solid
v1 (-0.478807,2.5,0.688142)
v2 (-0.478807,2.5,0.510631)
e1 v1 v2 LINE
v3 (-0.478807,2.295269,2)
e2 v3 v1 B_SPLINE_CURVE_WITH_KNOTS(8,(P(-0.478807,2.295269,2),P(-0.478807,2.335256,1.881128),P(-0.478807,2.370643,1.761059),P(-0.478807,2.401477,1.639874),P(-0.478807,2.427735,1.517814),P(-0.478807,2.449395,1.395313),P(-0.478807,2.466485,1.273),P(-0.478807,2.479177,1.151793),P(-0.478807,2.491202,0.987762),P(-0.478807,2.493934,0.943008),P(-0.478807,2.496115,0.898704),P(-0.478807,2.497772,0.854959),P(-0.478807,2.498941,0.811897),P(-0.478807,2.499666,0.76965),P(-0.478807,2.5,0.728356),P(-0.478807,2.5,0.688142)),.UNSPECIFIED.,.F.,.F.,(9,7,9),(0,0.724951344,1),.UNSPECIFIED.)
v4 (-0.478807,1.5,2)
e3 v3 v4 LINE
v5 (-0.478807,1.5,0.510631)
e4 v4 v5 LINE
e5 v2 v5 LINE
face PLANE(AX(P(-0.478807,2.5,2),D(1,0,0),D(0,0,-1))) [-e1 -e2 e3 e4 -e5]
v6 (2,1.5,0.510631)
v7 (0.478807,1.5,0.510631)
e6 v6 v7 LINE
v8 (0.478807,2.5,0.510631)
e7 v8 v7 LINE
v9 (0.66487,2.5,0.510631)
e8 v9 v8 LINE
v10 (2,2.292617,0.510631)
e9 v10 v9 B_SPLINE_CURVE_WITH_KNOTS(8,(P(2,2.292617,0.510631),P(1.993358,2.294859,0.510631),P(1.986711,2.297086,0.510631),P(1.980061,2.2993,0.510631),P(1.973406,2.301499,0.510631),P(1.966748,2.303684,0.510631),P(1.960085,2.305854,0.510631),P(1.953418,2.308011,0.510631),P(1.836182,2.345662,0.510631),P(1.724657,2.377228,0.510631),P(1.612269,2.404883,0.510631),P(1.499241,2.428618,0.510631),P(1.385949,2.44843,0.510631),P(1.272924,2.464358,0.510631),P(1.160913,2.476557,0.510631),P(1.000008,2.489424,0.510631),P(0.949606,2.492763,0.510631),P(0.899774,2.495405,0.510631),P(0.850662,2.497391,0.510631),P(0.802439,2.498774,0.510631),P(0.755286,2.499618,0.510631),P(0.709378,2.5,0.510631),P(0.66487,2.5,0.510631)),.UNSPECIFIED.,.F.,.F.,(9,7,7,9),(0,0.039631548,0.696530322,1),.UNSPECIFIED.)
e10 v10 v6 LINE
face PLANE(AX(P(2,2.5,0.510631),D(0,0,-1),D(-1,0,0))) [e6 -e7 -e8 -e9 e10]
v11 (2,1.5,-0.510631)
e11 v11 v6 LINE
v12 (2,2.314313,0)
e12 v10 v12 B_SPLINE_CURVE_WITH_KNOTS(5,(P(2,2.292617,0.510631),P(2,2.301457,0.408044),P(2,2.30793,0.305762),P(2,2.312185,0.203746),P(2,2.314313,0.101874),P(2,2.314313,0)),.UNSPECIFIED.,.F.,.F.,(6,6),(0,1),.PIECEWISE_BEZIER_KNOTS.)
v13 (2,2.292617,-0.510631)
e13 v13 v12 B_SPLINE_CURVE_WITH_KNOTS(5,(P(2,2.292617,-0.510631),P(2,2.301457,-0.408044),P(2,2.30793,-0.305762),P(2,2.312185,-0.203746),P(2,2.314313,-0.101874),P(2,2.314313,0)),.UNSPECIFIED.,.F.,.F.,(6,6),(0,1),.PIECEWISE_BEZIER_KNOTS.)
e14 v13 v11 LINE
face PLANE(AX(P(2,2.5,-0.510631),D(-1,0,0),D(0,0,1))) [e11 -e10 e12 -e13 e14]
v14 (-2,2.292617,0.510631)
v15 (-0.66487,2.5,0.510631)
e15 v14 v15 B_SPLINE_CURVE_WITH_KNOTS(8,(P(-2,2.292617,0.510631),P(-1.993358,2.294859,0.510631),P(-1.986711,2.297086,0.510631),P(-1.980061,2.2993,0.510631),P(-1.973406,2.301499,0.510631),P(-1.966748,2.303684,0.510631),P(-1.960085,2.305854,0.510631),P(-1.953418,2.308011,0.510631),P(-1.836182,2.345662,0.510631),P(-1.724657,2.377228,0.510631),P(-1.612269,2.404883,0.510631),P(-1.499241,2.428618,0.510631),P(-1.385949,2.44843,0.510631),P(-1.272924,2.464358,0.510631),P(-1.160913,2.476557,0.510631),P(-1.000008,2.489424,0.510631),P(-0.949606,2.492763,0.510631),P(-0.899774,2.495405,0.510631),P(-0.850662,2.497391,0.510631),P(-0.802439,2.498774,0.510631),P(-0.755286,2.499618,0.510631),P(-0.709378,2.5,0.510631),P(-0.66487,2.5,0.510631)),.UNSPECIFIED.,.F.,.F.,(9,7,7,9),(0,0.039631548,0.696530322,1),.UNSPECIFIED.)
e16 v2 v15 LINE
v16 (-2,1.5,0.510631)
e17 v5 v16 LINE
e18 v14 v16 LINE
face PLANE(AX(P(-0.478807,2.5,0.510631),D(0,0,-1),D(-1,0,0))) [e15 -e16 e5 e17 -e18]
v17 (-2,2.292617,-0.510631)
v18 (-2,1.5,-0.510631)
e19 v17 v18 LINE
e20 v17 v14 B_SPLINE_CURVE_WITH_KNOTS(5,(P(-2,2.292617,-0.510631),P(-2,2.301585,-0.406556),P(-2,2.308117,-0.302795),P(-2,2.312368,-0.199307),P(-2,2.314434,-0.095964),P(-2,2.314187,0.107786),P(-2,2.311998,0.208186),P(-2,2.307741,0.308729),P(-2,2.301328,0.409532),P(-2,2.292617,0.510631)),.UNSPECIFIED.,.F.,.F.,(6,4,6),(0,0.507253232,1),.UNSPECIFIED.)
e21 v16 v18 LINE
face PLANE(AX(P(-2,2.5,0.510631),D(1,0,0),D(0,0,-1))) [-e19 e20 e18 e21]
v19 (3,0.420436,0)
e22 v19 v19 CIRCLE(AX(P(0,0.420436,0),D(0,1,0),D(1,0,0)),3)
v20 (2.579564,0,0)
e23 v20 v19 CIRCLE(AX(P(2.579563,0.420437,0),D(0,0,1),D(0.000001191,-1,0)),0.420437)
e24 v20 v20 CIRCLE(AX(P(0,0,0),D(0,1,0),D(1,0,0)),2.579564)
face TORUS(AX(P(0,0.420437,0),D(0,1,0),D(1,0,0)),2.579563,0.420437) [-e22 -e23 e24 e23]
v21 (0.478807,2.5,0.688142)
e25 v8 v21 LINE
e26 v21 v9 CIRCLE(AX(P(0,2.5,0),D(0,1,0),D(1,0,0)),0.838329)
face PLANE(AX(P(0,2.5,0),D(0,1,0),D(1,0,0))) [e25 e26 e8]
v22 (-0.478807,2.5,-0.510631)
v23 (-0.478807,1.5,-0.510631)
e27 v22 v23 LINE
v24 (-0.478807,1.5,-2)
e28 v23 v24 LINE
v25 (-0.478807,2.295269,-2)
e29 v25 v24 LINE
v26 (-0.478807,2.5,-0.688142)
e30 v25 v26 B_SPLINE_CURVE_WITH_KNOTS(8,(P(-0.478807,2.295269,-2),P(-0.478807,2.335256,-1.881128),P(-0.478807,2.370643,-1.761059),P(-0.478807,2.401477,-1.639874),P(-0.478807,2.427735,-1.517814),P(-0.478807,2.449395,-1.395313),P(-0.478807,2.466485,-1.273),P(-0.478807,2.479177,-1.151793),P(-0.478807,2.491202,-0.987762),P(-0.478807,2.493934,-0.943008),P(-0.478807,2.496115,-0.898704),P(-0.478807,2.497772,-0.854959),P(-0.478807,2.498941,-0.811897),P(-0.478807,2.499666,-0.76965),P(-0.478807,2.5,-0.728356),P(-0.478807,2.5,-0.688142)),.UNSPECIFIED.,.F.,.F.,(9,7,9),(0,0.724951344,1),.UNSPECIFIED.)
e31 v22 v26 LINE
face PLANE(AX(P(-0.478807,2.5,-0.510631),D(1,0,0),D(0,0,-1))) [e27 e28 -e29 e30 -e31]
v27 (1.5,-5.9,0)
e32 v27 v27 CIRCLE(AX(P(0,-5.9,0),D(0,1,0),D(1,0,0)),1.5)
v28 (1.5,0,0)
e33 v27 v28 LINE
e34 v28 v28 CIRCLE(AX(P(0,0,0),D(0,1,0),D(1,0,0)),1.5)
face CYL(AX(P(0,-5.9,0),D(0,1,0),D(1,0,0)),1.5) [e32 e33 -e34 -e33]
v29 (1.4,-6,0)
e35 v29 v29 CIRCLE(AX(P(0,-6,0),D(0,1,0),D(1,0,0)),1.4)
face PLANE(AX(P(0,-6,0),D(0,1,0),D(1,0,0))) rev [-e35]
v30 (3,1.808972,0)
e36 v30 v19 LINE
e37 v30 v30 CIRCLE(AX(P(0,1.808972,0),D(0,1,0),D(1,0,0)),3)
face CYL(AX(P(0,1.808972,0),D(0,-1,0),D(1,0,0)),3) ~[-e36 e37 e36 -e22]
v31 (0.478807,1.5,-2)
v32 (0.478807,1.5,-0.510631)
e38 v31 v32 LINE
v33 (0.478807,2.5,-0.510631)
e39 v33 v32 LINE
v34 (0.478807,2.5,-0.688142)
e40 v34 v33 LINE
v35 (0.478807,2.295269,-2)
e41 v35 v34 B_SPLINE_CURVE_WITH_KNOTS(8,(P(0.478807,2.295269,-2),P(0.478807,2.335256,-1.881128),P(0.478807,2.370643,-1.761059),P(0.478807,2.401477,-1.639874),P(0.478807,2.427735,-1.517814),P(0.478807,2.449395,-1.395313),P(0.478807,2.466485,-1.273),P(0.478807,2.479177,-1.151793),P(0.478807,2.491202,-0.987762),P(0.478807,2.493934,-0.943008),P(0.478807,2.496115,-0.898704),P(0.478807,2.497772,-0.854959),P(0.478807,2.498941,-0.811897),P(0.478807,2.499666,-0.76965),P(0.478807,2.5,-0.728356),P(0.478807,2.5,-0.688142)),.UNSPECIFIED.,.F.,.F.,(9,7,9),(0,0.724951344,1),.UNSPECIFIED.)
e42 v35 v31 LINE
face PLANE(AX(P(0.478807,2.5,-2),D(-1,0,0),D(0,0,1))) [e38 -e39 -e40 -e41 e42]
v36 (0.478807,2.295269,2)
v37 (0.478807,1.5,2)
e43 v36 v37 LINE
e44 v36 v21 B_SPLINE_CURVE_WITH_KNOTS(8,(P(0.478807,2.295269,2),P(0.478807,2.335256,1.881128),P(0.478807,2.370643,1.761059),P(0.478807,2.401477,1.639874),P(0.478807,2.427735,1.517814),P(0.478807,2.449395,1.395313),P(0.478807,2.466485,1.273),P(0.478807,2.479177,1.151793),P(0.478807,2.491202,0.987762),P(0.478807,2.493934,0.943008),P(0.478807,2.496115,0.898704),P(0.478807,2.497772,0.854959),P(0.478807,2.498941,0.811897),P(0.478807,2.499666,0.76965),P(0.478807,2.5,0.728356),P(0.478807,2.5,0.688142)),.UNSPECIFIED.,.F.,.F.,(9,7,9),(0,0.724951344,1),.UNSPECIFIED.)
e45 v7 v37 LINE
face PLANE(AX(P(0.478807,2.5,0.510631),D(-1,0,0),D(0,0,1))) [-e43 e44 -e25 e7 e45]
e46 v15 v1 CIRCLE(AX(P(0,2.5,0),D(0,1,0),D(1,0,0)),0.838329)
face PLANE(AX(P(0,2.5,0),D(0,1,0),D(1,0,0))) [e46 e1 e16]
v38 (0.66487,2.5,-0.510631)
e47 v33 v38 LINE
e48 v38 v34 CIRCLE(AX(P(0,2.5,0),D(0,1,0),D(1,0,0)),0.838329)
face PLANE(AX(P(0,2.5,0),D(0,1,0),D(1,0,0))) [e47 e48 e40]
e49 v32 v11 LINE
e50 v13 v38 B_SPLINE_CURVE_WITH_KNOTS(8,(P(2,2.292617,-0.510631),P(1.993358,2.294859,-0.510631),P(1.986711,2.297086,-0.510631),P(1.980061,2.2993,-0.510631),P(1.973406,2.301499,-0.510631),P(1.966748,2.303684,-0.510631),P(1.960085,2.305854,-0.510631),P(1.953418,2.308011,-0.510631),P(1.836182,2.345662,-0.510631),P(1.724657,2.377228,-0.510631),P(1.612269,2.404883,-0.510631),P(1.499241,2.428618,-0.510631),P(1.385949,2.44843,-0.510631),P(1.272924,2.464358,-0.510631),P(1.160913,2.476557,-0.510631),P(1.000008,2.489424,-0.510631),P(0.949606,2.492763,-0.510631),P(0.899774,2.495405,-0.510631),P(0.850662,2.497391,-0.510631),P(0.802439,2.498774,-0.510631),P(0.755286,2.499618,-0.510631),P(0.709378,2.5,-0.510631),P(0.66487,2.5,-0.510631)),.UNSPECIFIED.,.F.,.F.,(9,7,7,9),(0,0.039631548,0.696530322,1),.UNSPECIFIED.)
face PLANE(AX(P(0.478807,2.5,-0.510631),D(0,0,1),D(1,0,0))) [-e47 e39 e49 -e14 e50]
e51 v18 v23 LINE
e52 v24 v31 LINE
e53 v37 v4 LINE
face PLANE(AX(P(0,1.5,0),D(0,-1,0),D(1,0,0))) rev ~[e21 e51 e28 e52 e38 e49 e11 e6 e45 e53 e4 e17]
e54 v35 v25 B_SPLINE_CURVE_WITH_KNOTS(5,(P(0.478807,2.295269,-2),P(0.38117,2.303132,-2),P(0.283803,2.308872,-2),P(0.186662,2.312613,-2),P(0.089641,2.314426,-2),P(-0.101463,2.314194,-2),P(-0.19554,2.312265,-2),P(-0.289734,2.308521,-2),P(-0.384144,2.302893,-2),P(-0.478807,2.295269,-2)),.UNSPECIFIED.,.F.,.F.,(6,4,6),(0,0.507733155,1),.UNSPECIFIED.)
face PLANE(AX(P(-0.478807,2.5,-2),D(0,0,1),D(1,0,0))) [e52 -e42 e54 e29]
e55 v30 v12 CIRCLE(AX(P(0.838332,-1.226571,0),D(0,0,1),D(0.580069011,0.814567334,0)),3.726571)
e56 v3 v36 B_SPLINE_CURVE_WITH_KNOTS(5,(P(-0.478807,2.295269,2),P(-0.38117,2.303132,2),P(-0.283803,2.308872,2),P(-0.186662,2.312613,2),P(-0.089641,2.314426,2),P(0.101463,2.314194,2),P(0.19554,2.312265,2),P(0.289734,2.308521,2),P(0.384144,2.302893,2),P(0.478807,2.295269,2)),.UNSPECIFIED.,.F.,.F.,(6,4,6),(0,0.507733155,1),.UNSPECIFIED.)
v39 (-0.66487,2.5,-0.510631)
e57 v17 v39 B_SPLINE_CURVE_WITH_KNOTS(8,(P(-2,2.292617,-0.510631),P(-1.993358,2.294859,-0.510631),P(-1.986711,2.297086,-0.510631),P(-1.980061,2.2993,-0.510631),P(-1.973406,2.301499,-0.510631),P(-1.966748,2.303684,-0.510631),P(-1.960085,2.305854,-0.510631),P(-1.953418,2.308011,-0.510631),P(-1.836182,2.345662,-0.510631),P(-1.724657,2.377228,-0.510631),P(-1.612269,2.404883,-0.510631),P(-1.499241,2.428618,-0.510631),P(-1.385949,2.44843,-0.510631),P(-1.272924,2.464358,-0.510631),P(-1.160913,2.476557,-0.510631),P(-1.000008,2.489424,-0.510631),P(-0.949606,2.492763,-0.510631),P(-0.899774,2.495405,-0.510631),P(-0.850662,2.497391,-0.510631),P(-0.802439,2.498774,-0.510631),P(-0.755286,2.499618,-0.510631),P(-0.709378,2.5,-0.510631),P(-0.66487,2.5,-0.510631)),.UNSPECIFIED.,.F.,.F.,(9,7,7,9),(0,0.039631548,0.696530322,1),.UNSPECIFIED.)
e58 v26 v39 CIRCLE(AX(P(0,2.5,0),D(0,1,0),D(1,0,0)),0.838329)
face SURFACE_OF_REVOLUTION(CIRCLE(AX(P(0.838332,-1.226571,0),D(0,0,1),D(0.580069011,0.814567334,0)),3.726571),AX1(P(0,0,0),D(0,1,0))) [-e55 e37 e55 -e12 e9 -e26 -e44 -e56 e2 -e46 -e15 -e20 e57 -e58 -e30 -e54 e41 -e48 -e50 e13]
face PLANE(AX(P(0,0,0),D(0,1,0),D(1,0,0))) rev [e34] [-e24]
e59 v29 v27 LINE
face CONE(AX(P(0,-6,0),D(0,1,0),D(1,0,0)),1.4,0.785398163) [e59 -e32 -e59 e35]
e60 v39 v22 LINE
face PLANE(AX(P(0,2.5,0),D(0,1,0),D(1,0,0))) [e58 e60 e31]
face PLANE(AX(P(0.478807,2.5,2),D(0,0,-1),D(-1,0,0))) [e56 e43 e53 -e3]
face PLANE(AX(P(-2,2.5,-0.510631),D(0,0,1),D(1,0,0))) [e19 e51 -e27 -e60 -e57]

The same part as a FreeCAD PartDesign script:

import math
import FreeCAD as App
import Part
import Sketcher
from FreeCAD import Vector
Q = App.Units.Quantity


def add_polygon(sketch, points):
    """Adds a closed chain of lines whose ends are joined by coincident constraints."""
    first, n = sketch.GeometryCount, len(points)
    for a, b in zip(points, points[1:] + points[:1]):
        sketch.addGeometry(Part.LineSegment(App.Vector(*a, 0), App.Vector(*b, 0)), False)
    for i in range(n):
        sketch.addConstraint(Sketcher.Constraint("Coincident", first + i, 2, first + (i + 1) % n, 1))

doc = App.newDocument("Part")
body = doc.addObject("PartDesign::Body", "Body")

# Sketch on XY plane
sketch1 = doc.addObject("Sketcher::SketchObject", "Sketch")
body.addObject(sketch1)
sketch1.AttachmentSupport = (doc.XY_Plane, [""])
sketch1.MapMode = "FlatFace"
sketch1.addGeometry([
    Part.LineSegment(Vector(0, -6, 0), Vector(1.4, -6, 0)),  # 0
    Part.LineSegment(Vector(1.4, -6, 0), Vector(1.5, -5.9, 0)),  # 1
    Part.LineSegment(Vector(1.5, -5.9, 0), Vector(1.5, 0, 0)),  # 2
    Part.LineSegment(Vector(1.5, 0, 0), Vector(2.58, 0, 0)),  # 3
    Part.ArcOfCircle(Part.Circle(Vector(2.58, 0.42, 0), Vector(0, 0, 1), 0.42), math.radians(-90), math.radians(0)),  # 4
    Part.LineSegment(Vector(3, 0.42, 0), Vector(3, 1.81, 0)),  # 5
    Part.ArcOfCircle(Part.Circle(Vector(0.84, -1.23, 0), Vector(0, 0, 1), 3.73), math.radians(55), math.radians(90)),  # 6
    Part.LineSegment(Vector(0.84, 2.5, 0), Vector(0, 2.5, 0)),  # 7
    Part.LineSegment(Vector(0, 2.5, 0), Vector(0, -6, 0)),  # 8
], False)
sketch1.addConstraint([
    Sketcher.Constraint("Coincident", 0, 2, 1, 1),
    Sketcher.Constraint("Coincident", 1, 2, 2, 1),
    Sketcher.Constraint("Coincident", 2, 2, 3, 1),
    Sketcher.Constraint("Tangent", 3, 2, 4, 1),
    Sketcher.Constraint("Tangent", 4, 2, 5, 1),
    Sketcher.Constraint("Coincident", 5, 2, 6, 1),
    Sketcher.Constraint("Tangent", 6, 2, 7, 1),
    Sketcher.Constraint("Coincident", 7, 2, 8, 1),
    Sketcher.Constraint("Coincident", 8, 2, 0, 1),
    Sketcher.Constraint("Horizontal", 0),
    Sketcher.Constraint("Vertical", 2),
    Sketcher.Constraint("Horizontal", 3),
    Sketcher.Constraint("Vertical", 5),
    Sketcher.Constraint("Horizontal", 7),
    Sketcher.Constraint("Vertical", 8),
    Sketcher.Constraint("PointOnObject", 2, 2, -1),
    Sketcher.Constraint("PointOnObject", 7, 2, -2),
    Sketcher.Constraint("Angle", 1, Q("45 deg")),
    Sketcher.Constraint("DistanceX", 0, 1, 0, 2, Q("1.4 mm")),
    Sketcher.Constraint("DistanceY", 2, 1, 2, 2, Q("5.9 mm")),
    Sketcher.Constraint("DistanceY", 8, 2, 8, 1, Q("8.5 mm")),
    Sketcher.Constraint("DistanceY", 0, 2, -1, 1, Q("6 mm")),
    Sketcher.Constraint("DistanceX", -1, 1, 4, 2, Q("3 mm")),
    Sketcher.Constraint("Radius", 6, Q("3.726571 mm")),
    Sketcher.Constraint("Radius", 4, Q("0.420437 mm")),
    Sketcher.Constraint("DistanceX", 7, 2, 7, 1, Q("0.838329 mm")),
])
revolution = doc.addObject("PartDesign::Revolution", "Revolution")
body.addObject(revolution)
revolution.Profile = sketch1
revolution.ReferenceAxis = (sketch1, ["V_Axis"])
revolution.Angle = 360

# Sketch on XZ plane
sketch2 = doc.addObject("Sketcher::SketchObject", "Sketch001")
body.addObject(sketch2)
sketch2.AttachmentSupport = (doc.XZ_Plane, [""])
sketch2.MapMode = "FlatFace"
sketch2.AttachmentOffset = App.Placement(Vector(0, 0, -2.5), App.Rotation())
add_polygon(sketch2, [(-0.5, 2), (0.5, 2), (0.5, 0.5), (2, 0.5), (2, -0.5), (0.5, -0.5), (0.5, -2), (-0.5, -2), (-0.5, -0.5), (-2, -0.5), (-2, 0.5), (-0.5, 0.5)])  # lines 0-11
sketch2.addConstraint([
    Sketcher.Constraint("Horizontal", 0),
    Sketcher.Constraint("Vertical", 1),
    Sketcher.Constraint("Horizontal", 2),
    Sketcher.Constraint("Vertical", 3),
    Sketcher.Constraint("Horizontal", 4),
    Sketcher.Constraint("Vertical", 5),
    Sketcher.Constraint("Horizontal", 6),
    Sketcher.Constraint("Vertical", 7),
    Sketcher.Constraint("Horizontal", 8),
    Sketcher.Constraint("Vertical", 9),
    Sketcher.Constraint("Horizontal", 10),
    Sketcher.Constraint("Vertical", 11),
    Sketcher.Constraint("Symmetric", 0, 2, 6, 2, -1, 1),
    Sketcher.Constraint("Symmetric", 2, 2, 8, 2, -1, 1),
    Sketcher.Constraint("Symmetric", 4, 2, 10, 2, -1, 1),
    Sketcher.Constraint("Symmetric", 4, 2, 7, 2, -2),
    Sketcher.Constraint("DistanceY", -1, 1, 0, 2, Q("2 mm")),
    Sketcher.Constraint("DistanceX", -1, 1, 2, 2, Q("2 mm")),
    Sketcher.Constraint("DistanceY", 1, 2, 1, 1, Q("1.489369 mm")),
    Sketcher.Constraint("DistanceX", 0, 1, 0, 2, Q("0.957614 mm")),
])
pocket1 = doc.addObject("PartDesign::Pocket", "Pocket")
body.addObject(pocket1)
pocket1.Profile = sketch2
pocket1.Length = 1
pocket1.Reversed = True

doc.recompute()
